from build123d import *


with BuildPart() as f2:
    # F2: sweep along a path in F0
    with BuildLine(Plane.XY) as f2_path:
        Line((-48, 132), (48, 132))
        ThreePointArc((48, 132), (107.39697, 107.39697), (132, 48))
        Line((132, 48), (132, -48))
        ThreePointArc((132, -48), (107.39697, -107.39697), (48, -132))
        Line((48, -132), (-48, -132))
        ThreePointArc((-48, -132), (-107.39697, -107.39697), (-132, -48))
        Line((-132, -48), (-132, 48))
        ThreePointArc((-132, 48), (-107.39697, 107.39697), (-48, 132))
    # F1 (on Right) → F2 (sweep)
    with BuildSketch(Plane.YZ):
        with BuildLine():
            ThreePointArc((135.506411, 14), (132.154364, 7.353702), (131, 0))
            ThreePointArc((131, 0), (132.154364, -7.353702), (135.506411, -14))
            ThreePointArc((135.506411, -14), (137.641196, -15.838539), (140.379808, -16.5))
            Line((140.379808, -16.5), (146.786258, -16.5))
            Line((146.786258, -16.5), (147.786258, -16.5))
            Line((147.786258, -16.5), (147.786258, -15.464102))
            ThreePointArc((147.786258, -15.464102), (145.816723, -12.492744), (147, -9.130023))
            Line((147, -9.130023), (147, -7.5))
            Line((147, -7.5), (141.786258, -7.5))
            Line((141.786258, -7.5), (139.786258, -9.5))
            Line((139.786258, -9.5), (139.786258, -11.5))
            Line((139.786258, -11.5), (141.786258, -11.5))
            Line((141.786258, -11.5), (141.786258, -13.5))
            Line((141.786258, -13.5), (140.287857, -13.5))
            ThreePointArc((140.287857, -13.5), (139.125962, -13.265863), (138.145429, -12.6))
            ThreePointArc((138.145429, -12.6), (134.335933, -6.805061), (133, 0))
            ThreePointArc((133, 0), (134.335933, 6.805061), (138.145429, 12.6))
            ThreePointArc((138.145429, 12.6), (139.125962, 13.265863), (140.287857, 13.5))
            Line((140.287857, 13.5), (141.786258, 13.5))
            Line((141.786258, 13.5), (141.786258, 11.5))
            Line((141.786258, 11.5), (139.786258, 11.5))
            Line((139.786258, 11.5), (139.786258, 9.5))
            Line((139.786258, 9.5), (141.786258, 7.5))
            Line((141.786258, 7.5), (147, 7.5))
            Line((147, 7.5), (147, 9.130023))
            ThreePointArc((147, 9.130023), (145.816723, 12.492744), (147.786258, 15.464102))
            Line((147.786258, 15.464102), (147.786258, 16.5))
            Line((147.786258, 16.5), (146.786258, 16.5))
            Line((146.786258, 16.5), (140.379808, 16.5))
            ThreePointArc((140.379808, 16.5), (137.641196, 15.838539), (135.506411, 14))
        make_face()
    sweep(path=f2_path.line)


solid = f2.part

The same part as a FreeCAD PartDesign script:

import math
import FreeCAD as App
import Part
import Sketcher

V = App.Vector

doc = App.newDocument("Part")
body = doc.addObject("PartDesign::Body", "Body")

sketch1 = body.newObject("Sketcher::SketchObject", "Sketch")
sketch1.AttachmentSupport = (doc.getObject("YZ_Plane"), [""])
sketch1.MapMode = "FlatFace"
sketch1.addGeometry([
    Part.ArcOfCircle(Part.Circle(V(154.999995, 0.000002, 0), V(0, 0, 1), 23.999995), math.radians(144.314663), math.radians(180.000005)),
    Part.ArcOfCircle(Part.Circle(V(154.999995, -0.000002, 0), V(0, 0, 1), 23.999995), math.radians(179.999995), math.radians(215.685337)),
    Part.ArcOfCircle(Part.Circle(V(140.37981, -10.499997, 0), V(0, 0, 1), 6.000003), math.radians(-144.31465), math.radians(-90.000017)),
    Part.LineSegment(V(140.379808, -16.5, 0), V(147.786258, -16.5, 0)),
    Part.LineSegment(V(147.786258, -16.5, 0), V(147.786258, -15.464102, 0)),
    Part.ArcOfCircle(Part.Circle(V(149.786257, -12, 0), V(0, 0, 1), 4), math.radians(134.152006), math.radians(240.000011)),
    Part.LineSegment(V(147, -9.130023, 0), V(147, -7.5, 0)),
    Part.LineSegment(V(147, -7.5, 0), V(141.786258, -7.5, 0)),
    Part.LineSegment(V(141.786258, -7.5, 0), V(139.786258, -9.5, 0)),
    Part.LineSegment(V(139.786258, -9.5, 0), V(139.786258, -11.5, 0)),
    Part.LineSegment(V(139.786258, -11.5, 0), V(141.786258, -11.5, 0)),
    Part.LineSegment(V(141.786258, -11.5, 0), V(141.786258, -13.5, 0)),
    Part.LineSegment(V(141.786258, -13.5, 0), V(140.287857, -13.5, 0)),
    Part.ArcOfCircle(Part.Circle(V(140.287858, -10.499999, 0), V(0, 0, 1), 3.000001), math.radians(-135.572986), math.radians(-90.00002)),
    Part.ArcOfCircle(Part.Circle(V(151.000005, 0.000002, 0), V(0, 0, 1), 18.000005), math.radians(-179.999993), math.radians(-135.573001)),
    Part.ArcOfCircle(Part.Circle(V(151.000005, -0.000002, 0), V(0, 0, 1), 18.000005), math.radians(135.573001), math.radians(179.999993)),
    Part.ArcOfCircle(Part.Circle(V(140.287858, 10.499999, 0), V(0, 0, 1), 3.000001), math.radians(90.00002), math.radians(135.572986)),
    Part.LineSegment(V(140.287857, 13.5, 0), V(141.786258, 13.5, 0)),
    Part.LineSegment(V(141.786258, 13.5, 0), V(141.786258, 11.5, 0)),
    Part.LineSegment(V(141.786258, 11.5, 0), V(139.786258, 11.5, 0)),
    Part.LineSegment(V(139.786258, 11.5, 0), V(139.786258, 9.5, 0)),
    Part.LineSegment(V(139.786258, 9.5, 0), V(141.786258, 7.5, 0)),
    Part.LineSegment(V(141.786258, 7.5, 0), V(147, 7.5, 0)),
    Part.LineSegment(V(147, 7.5, 0), V(147, 9.130023, 0)),
    Part.ArcOfCircle(Part.Circle(V(149.786257, 12, 0), V(0, 0, 1), 4), math.radians(119.999989), math.radians(225.847994)),
    Part.LineSegment(V(147.786258, 15.464102, 0), V(147.786258, 16.5, 0)),
    Part.LineSegment(V(147.786258, 16.5, 0), V(140.379808, 16.5, 0)),
    Part.ArcOfCircle(Part.Circle(V(140.37981, 10.499997, 0), V(0, 0, 1), 6.000003), math.radians(90.000017), math.radians(144.31465)),
], False)
sketch1.addConstraint([
    Sketcher.Constraint("Tangent", 0, 2, 1, 1),
    Sketcher.Constraint("Tangent", 1, 2, 2, 1),
    Sketcher.Constraint("Tangent", 2, 2, 3, 1),
    Sketcher.Constraint("Coincident", 3, 2, 4, 1),
    Sketcher.Constraint("Coincident", 4, 2, 5, 2),
    Sketcher.Constraint("Coincident", 5, 1, 6, 1),
    Sketcher.Constraint("Coincident", 6, 2, 7, 1),
    Sketcher.Constraint("Coincident", 7, 2, 8, 1),
    Sketcher.Constraint("Coincident", 8, 2, 9, 1),
    Sketcher.Constraint("Coincident", 9, 2, 10, 1),
    Sketcher.Constraint("Coincident", 10, 2, 11, 1),
    Sketcher.Constraint("Coincident", 11, 2, 12, 1),
    Sketcher.Constraint("Tangent", 12, 2, 13, 2),
    Sketcher.Constraint("Tangent", 13, 1, 14, 2),
    Sketcher.Constraint("Tangent", 14, 1, 15, 2),
    Sketcher.Constraint("Tangent", 15, 1, 16, 2),
    Sketcher.Constraint("Tangent", 16, 1, 17, 1),
    Sketcher.Constraint("Coincident", 17, 2, 18, 1),
    Sketcher.Constraint("Coincident", 18, 2, 19, 1),
    Sketcher.Constraint("Coincident", 19, 2, 20, 1),
    Sketcher.Constraint("Coincident", 20, 2, 21, 1),
    Sketcher.Constraint("Coincident", 21, 2, 22, 1),
    Sketcher.Constraint("Coincident", 22, 2, 23, 1),
    Sketcher.Constraint("Coincident", 23, 2, 24, 2),
    Sketcher.Constraint("Coincident", 24, 1, 25, 1),
    Sketcher.Constraint("Coincident", 25, 2, 26, 1),
    Sketcher.Constraint("Tangent", 26, 2, 27, 1),
    Sketcher.Constraint("Tangent", 27, 2, 0, 1),
    Sketcher.Constraint("Horizontal", 3),
    Sketcher.Constraint("Vertical", 4),
    Sketcher.Constraint("Vertical", 6),
    Sketcher.Constraint("Horizontal", 7),
    Sketcher.Constraint("Vertical", 9),
    Sketcher.Constraint("Horizontal", 10),
    Sketcher.Constraint("Vertical", 11),
    Sketcher.Constraint("Horizontal", 12),
    Sketcher.Constraint("Horizontal", 17),
    Sketcher.Constraint("Vertical", 18),
    Sketcher.Constraint("Horizontal", 19),
    Sketcher.Constraint("Vertical", 20),
    Sketcher.Constraint("Horizontal", 22),
    Sketcher.Constraint("Vertical", 23),
    Sketcher.Constraint("Vertical", 25),
    Sketcher.Constraint("Horizontal", 26),
    Sketcher.Constraint("Equal", 0, 1),
    Sketcher.Constraint("Equal", 14, 15),
    Sketcher.Constraint("Equal", 13, 16),
    Sketcher.Constraint("Equal", 5, 24),
    Sketcher.Constraint("Equal", 2, 27),
    Sketcher.Constraint("Symmetric", 13, 3, 16, 3, -1),
    Sketcher.Constraint("Symmetric", 5, 3, 24, 3, -1),
    Sketcher.Constraint("Symmetric", 2, 3, 27, 3, -1),
    Sketcher.Constraint("Symmetric", 10, 2, 18, 2, -1),
    Sketcher.Constraint("Symmetric", 8, 2, 20, 2, -1),
    Sketcher.Constraint("Symmetric", 7, 2, 21, 2, -1),
    Sketcher.Constraint("PointOnObject", 0, 2, -1),
    Sketcher.Constraint("PointOnObject", 14, 1, -1),
    Sketcher.Constraint("Perpendicular", 8, 21),
    Sketcher.Constraint("Horizontal", 2, 3, 13, 3),
    Sketcher.Constraint("Vertical", 7, 2, 10, 2),
    Sketcher.Constraint("Vertical", 6, 2, 22, 2),
    Sketcher.Constraint("Vertical", 4, 2, 24, 1),
    Sketcher.Constraint("Equal", 19, 9),
    Sketcher.Constraint("Equal", 9, 11),
    Sketcher.Constraint("Radius", 5, 4.0),
    Sketcher.Constraint("Radius", 13, 3.000001),
    Sketcher.Constraint("DistanceX", 10, 1, 10, 2, 2.0),
    Sketcher.Constraint("DistanceY", 5, 3, -1, 1, 12.0),
    Sketcher.Constraint("DistanceX", -1, 1, 0, 2, 131.0),
    Sketcher.Constraint("DistanceY", 1, 2, -1, 1, 14.0),
    Sketcher.Constraint("DistanceX", -1, 1, 5, 1, 147.0),
    Sketcher.Constraint("DistanceX", -1, 1, 14, 1, 133.0),
    Sketcher.Constraint("DistanceY", 2, 2, 13, 3, 6.000001),
    Sketcher.Constraint("DistanceX", 3, 2, 5, 3, 1.999999),
    Sketcher.Constraint("DistanceX", 17, 2, 24, 3, 7.999999),
    Sketcher.Constraint("DistanceY", 13, 3, -1, 1, 10.499999),
    Sketcher.Constraint("DistanceY", 13, 1, -1, 1, 12.6),
    Sketcher.Constraint("DistanceX", 12, 2, 12, 1, 1.498401),
])

sketch2 = body.newObject("Sketcher::SketchObject", "Sketch001")
sketch2.AttachmentSupport = (doc.getObject("XY_Plane"), [""])
sketch2.MapMode = "FlatFace"
sketch2.addGeometry([
    Part.LineSegment(V(-48, 132, 0), V(48, 132, 0)),
    Part.ArcOfCircle(Part.Circle(V(48.000001, 48.000001, 0), V(0, 0, 1), 83.999999), math.radians(-0.000001), math.radians(90.000001)),
    Part.LineSegment(V(132, 48, 0), V(132, -48, 0)),
    Part.ArcOfCircle(Part.Circle(V(48.000001, -48.000001, 0), V(0, 0, 1), 83.999999), math.radians(-90.000001), math.radians(0.000001)),
    Part.LineSegment(V(48, -132, 0), V(-48, -132, 0)),
    Part.ArcOfCircle(Part.Circle(V(-48.000001, -48.000001, 0), V(0, 0, 1), 83.999999), math.radians(179.999999), math.radians(270.000001)),
    Part.LineSegment(V(-132, -48, 0), V(-132, 48, 0)),
    Part.ArcOfCircle(Part.Circle(V(-48.000001, 48.000001, 0), V(0, 0, 1), 83.999999), math.radians(89.999999), math.radians(180.000001)),
], False)
sketch2.addConstraint([
    Sketcher.Constraint("Tangent", 0, 2, 1, 2),
    Sketcher.Constraint("Tangent", 1, 1, 2, 1),
    Sketcher.Constraint("Tangent", 2, 2, 3, 2),
    Sketcher.Constraint("Tangent", 3, 1, 4, 1),
    Sketcher.Constraint("Tangent", 4, 2, 5, 2),
    Sketcher.Constraint("Tangent", 5, 1, 6, 1),
    Sketcher.Constraint("Tangent", 6, 2, 7, 2),
    Sketcher.Constraint("Tangent", 7, 1, 0, 1),
    Sketcher.Constraint("Horizontal", 0),
    Sketcher.Constraint("Vertical", 2),
    Sketcher.Constraint("Horizontal", 4),
    Sketcher.Constraint("Vertical", 6),
    Sketcher.Constraint("Equal", 1, 3),
    Sketcher.Constraint("Equal", 3, 5),
    Sketcher.Constraint("Equal", 5, 7),
    Sketcher.Constraint("Symmetric", 1, 3, 5, 3, -1, 1),
    Sketcher.Constraint("Equal", 4, 2),
    Sketcher.Constraint("Radius", 1, 83.999999),
    Sketcher.Constraint("DistanceX", 0, 1, 0, 2, 96.0),
])
doc.recompute()

additivepipe = body.newObject("PartDesign::AdditivePipe", "AdditivePipe")
additivepipe.Profile = sketch1
additivepipe.Spine = (sketch2, ["Edge1", "Edge2", "Edge3", "Edge4", "Edge5", "Edge6", "Edge7", "Edge8"])

doc.recompute()
